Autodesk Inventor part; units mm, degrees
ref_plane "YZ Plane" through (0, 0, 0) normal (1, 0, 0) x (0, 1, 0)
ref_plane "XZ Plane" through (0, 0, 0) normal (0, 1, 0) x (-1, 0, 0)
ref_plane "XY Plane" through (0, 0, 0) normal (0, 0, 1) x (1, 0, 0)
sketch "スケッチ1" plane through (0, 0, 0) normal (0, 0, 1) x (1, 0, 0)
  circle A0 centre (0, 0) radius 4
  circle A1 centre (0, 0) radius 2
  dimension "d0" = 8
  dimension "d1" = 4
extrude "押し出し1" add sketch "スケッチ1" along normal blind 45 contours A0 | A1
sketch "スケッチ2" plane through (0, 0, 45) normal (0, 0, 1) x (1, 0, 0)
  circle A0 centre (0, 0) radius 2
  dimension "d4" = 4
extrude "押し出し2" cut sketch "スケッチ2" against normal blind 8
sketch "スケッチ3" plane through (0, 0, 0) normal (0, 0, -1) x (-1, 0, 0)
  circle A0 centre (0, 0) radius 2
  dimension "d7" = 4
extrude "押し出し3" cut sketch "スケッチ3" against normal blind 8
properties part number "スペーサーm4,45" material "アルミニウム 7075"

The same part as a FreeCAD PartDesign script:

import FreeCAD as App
import Part
import Sketcher
Q = App.Units.Quantity

doc = App.newDocument("Part")
body = doc.addObject("PartDesign::Body", "Body")

sketch1 = body.newObject("Sketcher::SketchObject", "Sketch")
sketch1.AttachmentSupport = (doc.getObject("XY_Plane"), [""])
sketch1.MapMode = "FlatFace"
sketch1.addGeometry(Part.Circle(App.Vector(0, 0, 0), App.Vector(0, 0, 1), 4), False)
sketch1.addConstraint(Sketcher.Constraint("Coincident", 0, 3, -1, 1))
sketch1.addConstraint(Sketcher.Constraint("Diameter", 0, Q("8 mm")))
pad1 = body.newObject("PartDesign::Pad", "Pad")
pad1.Profile = sketch1
pad1.Length = 45

sketch2 = body.newObject("Sketcher::SketchObject", "Sketch001")
sketch2.AttachmentSupport = (doc.getObject("XY_Plane"), [""])
sketch2.MapMode = "FlatFace"
sketch2.AttachmentOffset = App.Placement(App.Vector(0, 0, 45), App.Rotation())
sketch2.addGeometry(Part.Circle(App.Vector(0, 0, 0), App.Vector(0, 0, 1), 2), False)
sketch2.addConstraint(Sketcher.Constraint("Coincident", 0, 3, -1, 1))
sketch2.addConstraint(Sketcher.Constraint("Diameter", 0, Q("4 mm")))
pocket1 = body.newObject("PartDesign::Pocket", "Pocket")
pocket1.Profile = sketch2
pocket1.Length = 8

sketch3 = body.newObject("Sketcher::SketchObject", "Sketch002")
sketch3.AttachmentSupport = (doc.getObject("XY_Plane"), [""])
sketch3.MapMode = "FlatFace"
sketch3.addGeometry(Part.Circle(App.Vector(0, 0, 0), App.Vector(0, 0, 1), 2), False)
sketch3.addConstraint(Sketcher.Constraint("Coincident", 0, 3, -1, 1))
sketch3.addConstraint(Sketcher.Constraint("Diameter", 0, Q("4 mm")))
pocket2 = body.newObject("PartDesign::Pocket", "Pocket001")
pocket2.Profile = sketch3
pocket2.Length = 8
pocket2.Reversed = True

doc.recompute()
